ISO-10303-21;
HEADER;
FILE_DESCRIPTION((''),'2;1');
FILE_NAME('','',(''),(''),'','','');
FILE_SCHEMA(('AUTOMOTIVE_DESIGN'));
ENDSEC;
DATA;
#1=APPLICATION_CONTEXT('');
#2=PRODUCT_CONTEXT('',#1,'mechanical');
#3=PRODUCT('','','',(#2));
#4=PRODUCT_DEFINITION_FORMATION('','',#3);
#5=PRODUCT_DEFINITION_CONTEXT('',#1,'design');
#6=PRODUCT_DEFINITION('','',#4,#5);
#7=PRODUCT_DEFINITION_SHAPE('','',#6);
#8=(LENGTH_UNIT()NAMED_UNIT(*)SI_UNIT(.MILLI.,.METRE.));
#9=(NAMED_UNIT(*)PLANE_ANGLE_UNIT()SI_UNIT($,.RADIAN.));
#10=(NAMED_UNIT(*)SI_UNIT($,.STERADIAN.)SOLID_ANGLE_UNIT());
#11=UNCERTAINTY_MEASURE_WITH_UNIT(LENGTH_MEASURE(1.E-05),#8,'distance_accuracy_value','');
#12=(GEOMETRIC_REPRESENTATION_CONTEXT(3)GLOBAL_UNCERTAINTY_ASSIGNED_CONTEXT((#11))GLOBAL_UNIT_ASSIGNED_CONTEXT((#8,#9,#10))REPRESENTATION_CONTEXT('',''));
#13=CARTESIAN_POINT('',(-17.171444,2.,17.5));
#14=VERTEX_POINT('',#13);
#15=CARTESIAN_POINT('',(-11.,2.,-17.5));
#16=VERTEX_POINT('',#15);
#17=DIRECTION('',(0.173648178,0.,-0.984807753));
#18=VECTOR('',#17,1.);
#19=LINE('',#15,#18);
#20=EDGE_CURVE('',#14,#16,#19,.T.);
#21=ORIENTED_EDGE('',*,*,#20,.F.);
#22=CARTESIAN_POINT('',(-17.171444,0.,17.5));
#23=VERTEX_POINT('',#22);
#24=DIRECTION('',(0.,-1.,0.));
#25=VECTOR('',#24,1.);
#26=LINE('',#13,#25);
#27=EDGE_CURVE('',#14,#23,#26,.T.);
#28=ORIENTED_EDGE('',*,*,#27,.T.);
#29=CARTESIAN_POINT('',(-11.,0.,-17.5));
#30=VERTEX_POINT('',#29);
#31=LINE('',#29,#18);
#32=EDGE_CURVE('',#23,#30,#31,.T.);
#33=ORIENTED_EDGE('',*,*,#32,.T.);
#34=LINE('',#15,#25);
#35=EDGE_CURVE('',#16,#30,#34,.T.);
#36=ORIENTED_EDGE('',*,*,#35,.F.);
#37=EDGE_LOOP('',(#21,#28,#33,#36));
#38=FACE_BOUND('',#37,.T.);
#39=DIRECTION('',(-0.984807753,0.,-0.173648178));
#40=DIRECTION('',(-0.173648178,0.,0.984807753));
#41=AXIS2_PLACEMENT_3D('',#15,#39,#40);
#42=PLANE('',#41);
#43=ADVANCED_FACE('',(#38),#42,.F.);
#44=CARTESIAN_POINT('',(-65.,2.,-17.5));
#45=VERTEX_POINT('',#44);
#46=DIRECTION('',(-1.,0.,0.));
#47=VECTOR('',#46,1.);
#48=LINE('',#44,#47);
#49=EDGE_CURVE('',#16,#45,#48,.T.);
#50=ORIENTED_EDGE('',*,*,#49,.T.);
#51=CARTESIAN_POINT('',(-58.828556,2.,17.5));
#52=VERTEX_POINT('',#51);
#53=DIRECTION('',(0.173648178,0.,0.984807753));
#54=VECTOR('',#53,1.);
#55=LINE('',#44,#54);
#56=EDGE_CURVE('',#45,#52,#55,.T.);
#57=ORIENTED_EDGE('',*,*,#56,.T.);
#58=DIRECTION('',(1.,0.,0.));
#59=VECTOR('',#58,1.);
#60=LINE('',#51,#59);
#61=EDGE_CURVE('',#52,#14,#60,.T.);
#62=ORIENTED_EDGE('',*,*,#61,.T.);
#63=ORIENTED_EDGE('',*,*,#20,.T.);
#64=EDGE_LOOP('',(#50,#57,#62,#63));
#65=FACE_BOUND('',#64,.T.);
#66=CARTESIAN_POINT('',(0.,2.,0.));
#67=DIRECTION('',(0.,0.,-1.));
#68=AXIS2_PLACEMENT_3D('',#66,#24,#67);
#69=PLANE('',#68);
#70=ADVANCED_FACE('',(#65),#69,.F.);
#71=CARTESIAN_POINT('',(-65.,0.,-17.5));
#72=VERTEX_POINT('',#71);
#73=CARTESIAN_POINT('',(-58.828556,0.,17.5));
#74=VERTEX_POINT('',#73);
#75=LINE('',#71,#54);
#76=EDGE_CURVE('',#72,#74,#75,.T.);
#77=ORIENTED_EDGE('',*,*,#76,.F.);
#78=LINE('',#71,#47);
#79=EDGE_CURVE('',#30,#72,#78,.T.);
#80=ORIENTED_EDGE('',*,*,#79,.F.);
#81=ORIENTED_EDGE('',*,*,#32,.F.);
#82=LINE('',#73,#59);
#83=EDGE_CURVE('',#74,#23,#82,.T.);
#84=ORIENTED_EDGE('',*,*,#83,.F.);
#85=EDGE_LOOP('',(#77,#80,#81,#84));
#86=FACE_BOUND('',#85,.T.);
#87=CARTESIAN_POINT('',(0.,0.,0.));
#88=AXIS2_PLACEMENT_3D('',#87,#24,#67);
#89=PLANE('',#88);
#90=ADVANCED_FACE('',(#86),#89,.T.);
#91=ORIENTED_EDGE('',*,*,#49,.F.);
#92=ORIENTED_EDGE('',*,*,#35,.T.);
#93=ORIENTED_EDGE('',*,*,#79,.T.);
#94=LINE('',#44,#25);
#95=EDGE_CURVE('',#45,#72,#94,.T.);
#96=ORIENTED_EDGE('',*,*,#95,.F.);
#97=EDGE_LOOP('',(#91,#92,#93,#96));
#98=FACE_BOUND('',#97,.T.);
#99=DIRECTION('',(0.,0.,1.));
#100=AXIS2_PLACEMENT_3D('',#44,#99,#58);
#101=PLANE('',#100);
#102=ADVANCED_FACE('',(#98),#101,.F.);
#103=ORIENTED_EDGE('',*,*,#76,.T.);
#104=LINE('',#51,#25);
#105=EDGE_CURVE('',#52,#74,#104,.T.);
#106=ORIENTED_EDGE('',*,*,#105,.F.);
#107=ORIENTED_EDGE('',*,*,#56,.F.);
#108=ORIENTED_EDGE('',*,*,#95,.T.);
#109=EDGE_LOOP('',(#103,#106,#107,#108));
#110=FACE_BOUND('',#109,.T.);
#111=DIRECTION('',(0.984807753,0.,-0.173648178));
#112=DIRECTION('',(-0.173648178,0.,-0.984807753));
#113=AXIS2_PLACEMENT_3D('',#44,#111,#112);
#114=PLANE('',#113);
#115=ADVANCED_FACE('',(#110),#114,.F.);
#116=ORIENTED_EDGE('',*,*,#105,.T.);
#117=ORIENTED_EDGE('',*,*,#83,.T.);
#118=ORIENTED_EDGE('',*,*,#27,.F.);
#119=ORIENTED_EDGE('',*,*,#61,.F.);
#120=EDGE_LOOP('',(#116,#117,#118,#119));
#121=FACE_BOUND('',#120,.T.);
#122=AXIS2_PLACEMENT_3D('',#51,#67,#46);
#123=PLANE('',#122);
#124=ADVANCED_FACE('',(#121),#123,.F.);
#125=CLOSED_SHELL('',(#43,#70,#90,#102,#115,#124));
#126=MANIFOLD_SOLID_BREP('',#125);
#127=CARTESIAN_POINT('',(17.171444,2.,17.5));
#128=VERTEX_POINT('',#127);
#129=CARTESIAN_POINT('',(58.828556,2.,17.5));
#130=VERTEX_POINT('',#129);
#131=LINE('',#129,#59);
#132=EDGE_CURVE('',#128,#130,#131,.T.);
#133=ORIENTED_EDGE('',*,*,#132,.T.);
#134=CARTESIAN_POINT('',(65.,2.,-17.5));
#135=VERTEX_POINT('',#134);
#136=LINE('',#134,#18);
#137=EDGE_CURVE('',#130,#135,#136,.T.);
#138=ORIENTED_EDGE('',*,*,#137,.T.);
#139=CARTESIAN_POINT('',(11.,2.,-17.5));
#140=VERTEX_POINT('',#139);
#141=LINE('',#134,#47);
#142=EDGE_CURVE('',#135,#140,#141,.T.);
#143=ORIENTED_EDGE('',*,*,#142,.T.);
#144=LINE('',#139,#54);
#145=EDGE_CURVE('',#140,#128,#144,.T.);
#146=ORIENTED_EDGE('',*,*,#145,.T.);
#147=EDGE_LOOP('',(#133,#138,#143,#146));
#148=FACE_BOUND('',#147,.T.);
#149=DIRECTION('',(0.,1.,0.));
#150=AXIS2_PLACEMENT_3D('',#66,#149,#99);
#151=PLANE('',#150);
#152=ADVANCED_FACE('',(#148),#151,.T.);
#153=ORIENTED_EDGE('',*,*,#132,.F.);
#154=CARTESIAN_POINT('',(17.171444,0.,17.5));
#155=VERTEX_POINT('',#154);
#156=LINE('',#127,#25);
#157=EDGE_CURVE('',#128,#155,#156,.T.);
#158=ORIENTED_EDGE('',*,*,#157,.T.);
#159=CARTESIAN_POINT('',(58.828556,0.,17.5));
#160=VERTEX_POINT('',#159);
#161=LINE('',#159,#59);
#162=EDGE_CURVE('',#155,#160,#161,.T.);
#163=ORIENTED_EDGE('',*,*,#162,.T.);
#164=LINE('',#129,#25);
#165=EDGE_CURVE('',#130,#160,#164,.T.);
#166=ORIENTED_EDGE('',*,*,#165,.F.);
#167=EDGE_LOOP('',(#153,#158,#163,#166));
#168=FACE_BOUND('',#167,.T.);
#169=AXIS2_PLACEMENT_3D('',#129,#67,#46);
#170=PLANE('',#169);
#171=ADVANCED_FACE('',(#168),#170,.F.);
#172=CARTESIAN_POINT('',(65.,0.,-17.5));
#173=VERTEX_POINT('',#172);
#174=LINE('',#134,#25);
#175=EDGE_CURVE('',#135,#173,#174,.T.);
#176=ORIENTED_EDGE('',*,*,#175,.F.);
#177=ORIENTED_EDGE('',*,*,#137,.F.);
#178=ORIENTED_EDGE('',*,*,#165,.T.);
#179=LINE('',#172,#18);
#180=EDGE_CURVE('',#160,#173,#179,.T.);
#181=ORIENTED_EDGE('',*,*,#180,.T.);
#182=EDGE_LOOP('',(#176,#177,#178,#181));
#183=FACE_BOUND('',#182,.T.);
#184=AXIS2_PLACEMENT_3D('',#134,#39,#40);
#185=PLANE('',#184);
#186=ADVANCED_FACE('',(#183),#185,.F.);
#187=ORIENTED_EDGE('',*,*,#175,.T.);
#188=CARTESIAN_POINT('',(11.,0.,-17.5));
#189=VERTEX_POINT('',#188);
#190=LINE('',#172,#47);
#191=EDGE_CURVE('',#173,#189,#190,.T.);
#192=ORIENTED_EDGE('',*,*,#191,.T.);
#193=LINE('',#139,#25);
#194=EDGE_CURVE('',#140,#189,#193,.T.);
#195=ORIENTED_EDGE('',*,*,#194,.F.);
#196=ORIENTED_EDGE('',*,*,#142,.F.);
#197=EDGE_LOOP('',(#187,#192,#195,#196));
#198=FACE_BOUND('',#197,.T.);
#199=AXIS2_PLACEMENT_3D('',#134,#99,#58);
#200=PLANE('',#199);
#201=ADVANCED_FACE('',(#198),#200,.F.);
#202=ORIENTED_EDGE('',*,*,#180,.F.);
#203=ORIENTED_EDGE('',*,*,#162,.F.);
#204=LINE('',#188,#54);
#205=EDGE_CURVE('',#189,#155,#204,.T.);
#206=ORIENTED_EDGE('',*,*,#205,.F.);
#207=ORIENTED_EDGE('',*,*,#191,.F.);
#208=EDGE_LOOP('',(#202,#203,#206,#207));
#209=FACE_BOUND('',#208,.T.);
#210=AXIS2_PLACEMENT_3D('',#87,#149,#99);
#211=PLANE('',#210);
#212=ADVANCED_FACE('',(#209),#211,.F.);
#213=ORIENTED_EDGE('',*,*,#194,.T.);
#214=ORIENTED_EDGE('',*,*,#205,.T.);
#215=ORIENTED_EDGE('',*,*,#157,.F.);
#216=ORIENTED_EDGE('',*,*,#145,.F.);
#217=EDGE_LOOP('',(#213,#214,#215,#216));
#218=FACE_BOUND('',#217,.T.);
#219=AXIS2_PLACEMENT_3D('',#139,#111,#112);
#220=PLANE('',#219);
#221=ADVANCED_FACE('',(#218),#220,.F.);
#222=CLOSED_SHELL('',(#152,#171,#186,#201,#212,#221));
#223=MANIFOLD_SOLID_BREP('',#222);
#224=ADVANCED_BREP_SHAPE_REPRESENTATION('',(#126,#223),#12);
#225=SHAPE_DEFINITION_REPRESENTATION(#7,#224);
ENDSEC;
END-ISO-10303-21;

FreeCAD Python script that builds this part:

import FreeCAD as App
import Part
import Sketcher

V = App.Vector
Q = App.Units.Quantity

doc = App.newDocument("Part")
body = doc.addObject("PartDesign::Body", "Body")

sketch1 = body.newObject("Sketcher::SketchObject", "Sketch")
sketch1.AttachmentSupport = (doc.getObject("XZ_Plane"), [""])
sketch1.MapMode = "FlatFace"
sketch1.addGeometry([
    Part.LineSegment(V(-65, -18, 0), V(-59, 18, 0)),
    Part.LineSegment(V(-59, 18, 0), V(-17, 18, 0)),
    Part.LineSegment(V(-17, 18, 0), V(-11, -18, 0)),
    Part.LineSegment(V(-11, -18, 0), V(-65, -18, 0)),
], False)
sketch1.addConstraint([
    Sketcher.Constraint("Coincident", 0, 2, 1, 1),
    Sketcher.Constraint("Coincident", 1, 2, 2, 1),
    Sketcher.Constraint("Coincident", 2, 2, 3, 1),
    Sketcher.Constraint("Coincident", 3, 2, 0, 1),
    Sketcher.Constraint("Horizontal", 1),
    Sketcher.Constraint("Horizontal", 3),
    Sketcher.Constraint("Equal", 0, 2),
    Sketcher.Constraint("DistanceX", 3, 2, 3, 1, 54.0),
    Sketcher.Constraint("Angle", 0, Q("80 deg")),
    Sketcher.Constraint("DistanceX", 2, 2, -1, 1, 11.0),
    Sketcher.Constraint("DistanceY", 2, 2, 1, 2, 35.0),
    Sketcher.Constraint("DistanceY", -1, 1, 0, 2, 17.5),
])
pad1 = body.newObject("PartDesign::Pad", "Pad")
pad1.Profile = sketch1
pad1.Length = 2
pad1.Reversed = True
body2 = doc.addObject("PartDesign::Body", "Body001")

sketch2 = body2.newObject("Sketcher::SketchObject", "Sketch001")
sketch2.AttachmentSupport = (doc.getObject("XZ_Plane001"), [""])
sketch2.MapMode = "FlatFace"
sketch2.addGeometry([
    Part.LineSegment(V(17, 18, 0), V(59, 18, 0)),
    Part.LineSegment(V(59, 18, 0), V(65, -18, 0)),
    Part.LineSegment(V(65, -18, 0), V(11, -18, 0)),
    Part.LineSegment(V(11, -18, 0), V(17, 18, 0)),
], False)
sketch2.addConstraint([
    Sketcher.Constraint("Coincident", 0, 2, 1, 1),
    Sketcher.Constraint("Coincident", 1, 2, 2, 1),
    Sketcher.Constraint("Coincident", 2, 2, 3, 1),
    Sketcher.Constraint("Coincident", 3, 2, 0, 1),
    Sketcher.Constraint("Horizontal", 0),
    Sketcher.Constraint("Horizontal", 2),
    Sketcher.Constraint("Equal", 1, 3),
    Sketcher.Constraint("DistanceX", 2, 2, 2, 1, 54.0),
    Sketcher.Constraint("Angle", 1, Q("-80 deg")),
    Sketcher.Constraint("DistanceX", -1, 1, 1, 2, 65.0),
    Sketcher.Constraint("DistanceY", 1, 2, 0, 2, 35.0),
    Sketcher.Constraint("DistanceY", -1, 1, 0, 2, 17.5),
])
pad2 = body2.newObject("PartDesign::Pad", "Pad001")
pad2.Profile = sketch2
pad2.Length = 2
pad2.Reversed = True

doc.recompute()
